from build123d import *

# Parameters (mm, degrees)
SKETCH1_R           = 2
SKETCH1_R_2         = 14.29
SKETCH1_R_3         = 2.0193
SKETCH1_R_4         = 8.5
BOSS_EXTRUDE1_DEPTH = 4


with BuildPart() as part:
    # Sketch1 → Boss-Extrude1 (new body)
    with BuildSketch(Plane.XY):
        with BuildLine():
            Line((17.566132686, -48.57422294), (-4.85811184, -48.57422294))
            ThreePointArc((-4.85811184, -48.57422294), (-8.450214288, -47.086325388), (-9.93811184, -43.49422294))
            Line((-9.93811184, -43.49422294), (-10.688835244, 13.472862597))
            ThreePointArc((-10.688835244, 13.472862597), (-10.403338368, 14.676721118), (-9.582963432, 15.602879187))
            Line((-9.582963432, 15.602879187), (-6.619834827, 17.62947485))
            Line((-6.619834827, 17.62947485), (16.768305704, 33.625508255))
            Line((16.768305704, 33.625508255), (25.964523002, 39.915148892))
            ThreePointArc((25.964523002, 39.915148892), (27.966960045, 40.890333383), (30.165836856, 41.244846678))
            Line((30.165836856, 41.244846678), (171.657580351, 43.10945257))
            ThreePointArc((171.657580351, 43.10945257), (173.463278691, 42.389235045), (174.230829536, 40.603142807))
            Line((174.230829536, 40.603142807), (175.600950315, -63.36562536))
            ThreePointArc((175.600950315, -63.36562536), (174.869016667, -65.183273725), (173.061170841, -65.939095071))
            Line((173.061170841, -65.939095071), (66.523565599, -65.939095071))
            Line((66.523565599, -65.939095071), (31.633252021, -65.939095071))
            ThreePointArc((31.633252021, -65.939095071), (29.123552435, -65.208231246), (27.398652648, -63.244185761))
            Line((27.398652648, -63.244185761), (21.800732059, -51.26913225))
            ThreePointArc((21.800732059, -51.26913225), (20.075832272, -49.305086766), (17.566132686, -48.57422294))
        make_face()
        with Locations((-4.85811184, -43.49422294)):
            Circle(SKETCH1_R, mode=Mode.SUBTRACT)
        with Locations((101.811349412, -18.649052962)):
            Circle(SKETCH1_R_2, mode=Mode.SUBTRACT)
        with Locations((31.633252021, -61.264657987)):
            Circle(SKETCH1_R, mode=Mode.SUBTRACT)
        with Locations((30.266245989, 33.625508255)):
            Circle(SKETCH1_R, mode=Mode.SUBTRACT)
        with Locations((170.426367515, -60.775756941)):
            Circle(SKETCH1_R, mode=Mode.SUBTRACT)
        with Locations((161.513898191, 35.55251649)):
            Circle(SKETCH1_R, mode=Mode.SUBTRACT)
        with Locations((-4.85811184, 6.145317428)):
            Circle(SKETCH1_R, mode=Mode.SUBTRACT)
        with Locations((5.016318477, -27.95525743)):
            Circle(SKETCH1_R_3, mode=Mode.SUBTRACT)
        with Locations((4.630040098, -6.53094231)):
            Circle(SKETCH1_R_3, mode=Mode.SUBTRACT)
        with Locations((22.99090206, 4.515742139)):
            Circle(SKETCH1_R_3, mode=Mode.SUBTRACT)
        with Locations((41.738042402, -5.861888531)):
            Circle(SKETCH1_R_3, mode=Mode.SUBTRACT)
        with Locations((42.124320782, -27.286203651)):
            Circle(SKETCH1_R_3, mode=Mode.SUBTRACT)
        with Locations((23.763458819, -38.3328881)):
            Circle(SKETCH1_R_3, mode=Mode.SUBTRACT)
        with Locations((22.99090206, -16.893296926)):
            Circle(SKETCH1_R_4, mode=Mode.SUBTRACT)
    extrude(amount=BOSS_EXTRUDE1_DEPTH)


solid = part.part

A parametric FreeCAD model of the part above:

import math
import FreeCAD as App
import Part
import Sketcher
Q = App.Units.Quantity

doc = App.newDocument("Part")
body = doc.addObject("PartDesign::Body", "Body")

# Sketch on XY plane
sketch1 = body.newObject("Sketcher::SketchObject", "Sketch")
sketch1.AttachmentSupport = (doc.getObject("XY_Plane"), [""])
sketch1.MapMode = "FlatFace"
sketch1.addGeometry(Part.LineSegment(App.Vector(-4.858112, -48.574223, 0), App.Vector(17.566133, -48.574223, 0)), False)
sketch1.addGeometry(Part.ArcOfCircle(Part.Circle(App.Vector(17.566133, -53.24866, 0), App.Vector(0, 0, 1), 4.674437), math.radians(25.054452), math.radians(90)), False)
sketch1.addGeometry(Part.LineSegment(App.Vector(21.800732, -51.269132, 0), App.Vector(27.398653, -63.244186, 0)), False)
sketch1.addGeometry(Part.ArcOfCircle(Part.Circle(App.Vector(31.633252, -61.264658, 0), App.Vector(0, 0, 1), 4.674437), math.radians(-154.945548), math.radians(-90)), False)
sketch1.addGeometry(Part.LineSegment(App.Vector(31.633252, -65.939095, 0), App.Vector(173.061171, -65.939095, 0)), False)
sketch1.addGeometry(Part.ArcOfCircle(Part.Circle(App.Vector(173.061171, -63.399095, 0), App.Vector(0, 0, 1), 2.54), math.radians(-90), math.radians(0.755011)), False)
sketch1.addGeometry(Part.LineSegment(App.Vector(175.60095, -63.365625, 0), App.Vector(174.23083, 40.603143, 0)), False)
sketch1.addGeometry(Part.ArcOfCircle(Part.Circle(App.Vector(171.69105, 40.569673, 0), App.Vector(0, 0, 1), 2.54), math.radians(0.755011), math.radians(90.755011)), False)
sketch1.addGeometry(Part.LineSegment(App.Vector(171.65758, 43.109453, 0), App.Vector(30.165837, 41.244847, 0)), False)
sketch1.addGeometry(Part.ArcOfCircle(Part.Circle(App.Vector(30.266246, 33.625508, 0), App.Vector(0, 0, 1), 7.62), math.radians(90.755011), math.radians(124.3697)), False)
sketch1.addGeometry(Part.LineSegment(App.Vector(25.964523, 39.915149, 0), App.Vector(16.768306, 33.625508, 0)), False)
sketch1.addGeometry(Part.LineSegment(App.Vector(16.768306, 33.625508, 0), App.Vector(-6.619835, 17.629475, 0)), False)
sketch1.addGeometry(Part.LineSegment(App.Vector(-6.619835, 17.629475, 0), App.Vector(-9.582963, 15.602879, 0)), False)
sketch1.addGeometry(Part.ArcOfCircle(Part.Circle(App.Vector(-8.149056, 13.506332, 0), App.Vector(0, 0, 1), 2.54), math.radians(124.3697), math.radians(180.755011)), False)
sketch1.addGeometry(Part.LineSegment(App.Vector(-10.688835, 13.472863, 0), App.Vector(-9.938112, -43.494223, 0)), False)
sketch1.addGeometry(Part.ArcOfCircle(Part.Circle(App.Vector(-4.858112, -43.494223, 0), App.Vector(0, 0, 1), 5.08), math.radians(-180), math.radians(-90)), False)
sketch1.addGeometry(Part.Circle(App.Vector(170.426368, -60.775757, 0), App.Vector(0, 0, 1), 2), False)
sketch1.addGeometry(Part.Circle(App.Vector(101.811349, -18.649053, 0), App.Vector(0, 0, 1), 14.29), False)
sketch1.addGeometry(Part.Circle(App.Vector(31.633252, -61.264658, 0), App.Vector(0, 0, 1), 2), False)
sketch1.addGeometry(Part.Circle(App.Vector(23.763459, -38.332888, 0), App.Vector(0, 0, 1), 2.0193), False)
sketch1.addGeometry(Part.Circle(App.Vector(-4.858112, -43.494223, 0), App.Vector(0, 0, 1), 2), False)
sketch1.addGeometry(Part.Circle(App.Vector(42.124321, -27.286204, 0), App.Vector(0, 0, 1), 2.0193), False)
sketch1.addGeometry(Part.Circle(App.Vector(5.016318, -27.955257, 0), App.Vector(0, 0, 1), 2.0193), False)
sketch1.addGeometry(Part.Circle(App.Vector(22.990902, -16.893297, 0), App.Vector(0, 0, 1), 8.5), False)
sketch1.addGeometry(Part.Circle(App.Vector(161.513898, 35.552516, 0), App.Vector(0, 0, 1), 2), False)
sketch1.addGeometry(Part.Circle(App.Vector(41.738042, -5.861889, 0), App.Vector(0, 0, 1), 2.0193), False)
sketch1.addGeometry(Part.Circle(App.Vector(4.63004, -6.530942, 0), App.Vector(0, 0, 1), 2.0193), False)
sketch1.addGeometry(Part.Circle(App.Vector(22.990902, 4.515742, 0), App.Vector(0, 0, 1), 2.0193), False)
sketch1.addGeometry(Part.Circle(App.Vector(-4.858112, 6.145317, 0), App.Vector(0, 0, 1), 2), False)
sketch1.addGeometry(Part.Circle(App.Vector(30.266246, 33.625508, 0), App.Vector(0, 0, 1), 2), False)
sketch1.addConstraint(Sketcher.Constraint("Tangent", 0, 2, 1, 2))
sketch1.addConstraint(Sketcher.Constraint("Tangent", 1, 1, 2, 1))
sketch1.addConstraint(Sketcher.Constraint("Tangent", 2, 2, 3, 1))
sketch1.addConstraint(Sketcher.Constraint("Tangent", 3, 2, 4, 1))
sketch1.addConstraint(Sketcher.Constraint("Tangent", 4, 2, 5, 1))
sketch1.addConstraint(Sketcher.Constraint("Tangent", 5, 2, 6, 1))
sketch1.addConstraint(Sketcher.Constraint("Tangent", 6, 2, 7, 1))
sketch1.addConstraint(Sketcher.Constraint("Tangent", 7, 2, 8, 1))
sketch1.addConstraint(Sketcher.Constraint("Tangent", 8, 2, 9, 1))
sketch1.addConstraint(Sketcher.Constraint("Tangent", 9, 2, 10, 1))
sketch1.addConstraint(Sketcher.Constraint("Coincident", 10, 2, 11, 1))
sketch1.addConstraint(Sketcher.Constraint("Coincident", 11, 2, 12, 1))
sketch1.addConstraint(Sketcher.Constraint("Tangent", 12, 2, 13, 1))
sketch1.addConstraint(Sketcher.Constraint("Tangent", 13, 2, 14, 1))
sketch1.addConstraint(Sketcher.Constraint("Coincident", 14, 2, 15, 1))
sketch1.addConstraint(Sketcher.Constraint("Tangent", 15, 2, 0, 1))
sketch1.addConstraint(Sketcher.Constraint("Horizontal", 0))
sketch1.addConstraint(Sketcher.Constraint("Horizontal", 4))
sketch1.addConstraint(Sketcher.Constraint("Coincident", 18, 3, 3, 3))
sketch1.addConstraint(Sketcher.Constraint("Coincident", 20, 3, 15, 3))
sketch1.addConstraint(Sketcher.Constraint("Coincident", 29, 3, 9, 3))
sketch1.addConstraint(Sketcher.Constraint("Equal", 1, 3))
sketch1.addConstraint(Sketcher.Constraint("Equal", 5, 7))
sketch1.addConstraint(Sketcher.Constraint("Equal", 7, 13))
sketch1.addConstraint(Sketcher.Constraint("Equal", 16, 18))
sketch1.addConstraint(Sketcher.Constraint("Equal", 18, 20))
sketch1.addConstraint(Sketcher.Constraint("Equal", 19, 21))
sketch1.addConstraint(Sketcher.Constraint("Equal", 21, 22))
sketch1.addConstraint(Sketcher.Constraint("Equal", 20, 24))
sketch1.addConstraint(Sketcher.Constraint("Equal", 22, 25))
sketch1.addConstraint(Sketcher.Constraint("Equal", 25, 26))
sketch1.addConstraint(Sketcher.Constraint("Equal", 26, 27))
sketch1.addConstraint(Sketcher.Constraint("Equal", 24, 28))
sketch1.addConstraint(Sketcher.Constraint("Equal", 28, 29))
sketch1.addConstraint(Sketcher.Constraint("Perpendicular", 6, 8))
sketch1.addConstraint(Sketcher.Constraint("Parallel", 10, 11))
sketch1.addConstraint(Sketcher.Constraint("Parallel", 11, 12))
sketch1.addConstraint(Sketcher.Constraint("Perpendicular", 8, 14))
sketch1.addConstraint(Sketcher.Constraint("Horizontal", 29, 3, 10, 2))
sketch1.addConstraint(Sketcher.Constraint("Horizontal", 20, 3, 14, 2))
sketch1.addConstraint(Sketcher.Constraint("Vertical", 23, 3, 27, 3))
sketch1.addConstraint(Sketcher.Constraint("Vertical", 20, 3, 28, 3))
sketch1.addConstraint(Sketcher.Constraint("Radius", 5, Q("0.1 in")))
sketch1.addConstraint(Sketcher.Constraint("Radius", 9, Q("0.3 in")))
sketch1.addConstraint(Sketcher.Constraint("Radius", 15, Q("0.2 in")))
sketch1.addConstraint(Sketcher.Constraint("Diameter", 19, Q("0.159 in")))
sketch1.addConstraint(Sketcher.Constraint("Diameter", 16, 4.0))
sketch1.addConstraint(Sketcher.Constraint("Diameter", 17, 28.58))
sketch1.addConstraint(Sketcher.Constraint("Diameter", 23, 17.0))
sketch1.addConstraint(Sketcher.Constraint("Radius", 1, 4.674437))
sketch1.addConstraint(Sketcher.Constraint("DistanceX", 4, 1, 4, 2, 141.427919))
sketch1.addConstraint(Sketcher.Constraint("DistanceX", -1, 1, 24, 3, 161.513898))
sketch1.addConstraint(Sketcher.Constraint("DistanceX", 3, 3, 7, 3, 140.057798))
sketch1.addConstraint(Sketcher.Constraint("DistanceX", 13, 3, 9, 3, 38.415302))
sketch1.addConstraint(Sketcher.Constraint("DistanceY", 3, 3, 16, 3, 0.488901))
sketch1.addConstraint(Sketcher.Constraint("DistanceY", 19, 3, 25, 3, 32.471))
sketch1.addConstraint(Sketcher.Constraint("DistanceX", 1, 3, 1, 1, 4.234599))
sketch1.addConstraint(Sketcher.Constraint("DistanceX", 17, 3, 5, 2, 73.789601))
sketch1.addConstraint(Sketcher.Constraint("DistanceY", 16, 3, 6, 2, 101.3789))
sketch1.addConstraint(Sketcher.Constraint("DistanceX", 13, 2, 11, 2, 4.069))
sketch1.addConstraint(Sketcher.Constraint("Distance", 8, 141.504029))
sketch1.addConstraint(Sketcher.Constraint("Distance", 14, 56.972032))
sketch1.addConstraint(Sketcher.Constraint("DistanceX", 0, 1, 0, 2, 22.424245))
sketch1.addConstraint(Sketcher.Constraint("DistanceY", 1, 3, -1, 1, 53.24866))
sketch1.addConstraint(Sketcher.Constraint("DistanceX", -1, 1, 5, 3, 173.061171))
sketch1.addConstraint(Sketcher.Constraint("DistanceX", -1, 1, 19, 3, 23.763459))
sketch1.addConstraint(Sketcher.Constraint("DistanceY", 19, 3, -1, 1, 38.332888))
sketch1.addConstraint(Sketcher.Constraint("DistanceX", -1, 1, 21, 3, 42.124321))
sketch1.addConstraint(Sketcher.Constraint("DistanceX", -1, 1, 22, 3, 5.016318))
sketch1.addConstraint(Sketcher.Constraint("DistanceX", -1, 1, 26, 3, 4.63004))
sketch1.addConstraint(Sketcher.Constraint("DistanceX", 9, 3, 16, 3, 140.160122))
sketch1.addConstraint(Sketcher.Constraint("DistanceY", 17, 3, 9, 3, 52.274561))
sketch1.addConstraint(Sketcher.Constraint("DistanceY", 15, 3, 21, 3, 16.208019))
sketch1.addConstraint(Sketcher.Constraint("DistanceY", 19, 3, 22, 3, 10.377631))
sketch1.addConstraint(Sketcher.Constraint("DistanceY", 22, 3, 23, 3, 11.061961))
sketch1.addConstraint(Sketcher.Constraint("DistanceX", 23, 3, 21, 3, 19.133419))
sketch1.addConstraint(Sketcher.Constraint("DistanceY", 17, 3, 24, 3, 54.201569))
sketch1.addConstraint(Sketcher.Constraint("DistanceX", 25, 3, 21, 3, 0.386278))
sketch1.addConstraint(Sketcher.Constraint("DistanceY", 23, 3, 27, 3, 21.409039))
sketch1.addConstraint(Sketcher.Constraint("DistanceY", 26, 3, 28, 3, 12.67626))
sketch1.addConstraint(Sketcher.Constraint("DistanceY", 28, 3, 29, 3, 27.480191))
pad1 = body.newObject("PartDesign::Pad", "Pad")
pad1.Profile = sketch1
pad1.Length = 4

doc.recompute()
